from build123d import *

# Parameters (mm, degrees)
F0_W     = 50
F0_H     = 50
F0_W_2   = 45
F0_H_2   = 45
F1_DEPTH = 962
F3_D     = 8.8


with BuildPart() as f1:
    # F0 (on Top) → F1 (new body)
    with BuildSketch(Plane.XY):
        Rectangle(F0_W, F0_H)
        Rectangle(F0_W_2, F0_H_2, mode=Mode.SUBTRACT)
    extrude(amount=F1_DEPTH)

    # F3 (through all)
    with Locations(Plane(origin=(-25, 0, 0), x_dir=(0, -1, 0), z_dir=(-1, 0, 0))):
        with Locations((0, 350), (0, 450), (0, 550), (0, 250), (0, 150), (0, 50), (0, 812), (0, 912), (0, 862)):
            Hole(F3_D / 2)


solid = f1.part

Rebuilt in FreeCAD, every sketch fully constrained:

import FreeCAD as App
import Part
import Sketcher
from FreeCAD import Vector


def add_polygon(sketch, points):
    """Adds a closed chain of lines whose ends are joined by coincident constraints."""
    first, n = sketch.GeometryCount, len(points)
    for a, b in zip(points, points[1:] + points[:1]):
        sketch.addGeometry(Part.LineSegment(App.Vector(*a, 0), App.Vector(*b, 0)), False)
    for i in range(n):
        sketch.addConstraint(Sketcher.Constraint("Coincident", first + i, 2, first + (i + 1) % n, 1))

doc = App.newDocument("Part")
body = doc.addObject("PartDesign::Body", "Body")

sketch1 = body.newObject("Sketcher::SketchObject", "Sketch")
sketch1.AttachmentSupport = (doc.getObject("XY_Plane"), [""])
sketch1.MapMode = "FlatFace"
add_polygon(sketch1, [(-25, 25), (-25, -25), (25, -25), (25, 25)])
add_polygon(sketch1, [(22, -22), (-22, -22), (-22, 22), (22, 22)])
sketch1.addConstraint([
    Sketcher.Constraint("Vertical", 0),
    Sketcher.Constraint("Horizontal", 1),
    Sketcher.Constraint("Vertical", 2),
    Sketcher.Constraint("Horizontal", 3),
    Sketcher.Constraint("Horizontal", 4),
    Sketcher.Constraint("Vertical", 5),
    Sketcher.Constraint("Horizontal", 6),
    Sketcher.Constraint("Vertical", 7),
    Sketcher.Constraint("Symmetric", 0, 2, 2, 2, -1, 1),
    Sketcher.Constraint("Symmetric", 4, 2, 6, 2, -1, 1),
    Sketcher.Constraint("Equal", 3, 0),
    Sketcher.Constraint("Equal", 6, 5),
    Sketcher.Constraint("DistanceX", 1, 1, 1, 2, 50.0),
    Sketcher.Constraint("DistanceX", 4, 2, 4, 1, 45.0),
])
pad1 = body.newObject("PartDesign::Pad", "Pad")
pad1.Profile = sketch1
pad1.Length = 962

sketch2 = body.newObject("Sketcher::SketchObject", "Sketch001")
sketch2.AttachmentSupport = (doc.getObject("YZ_Plane"), [""])
sketch2.MapMode = "FlatFace"
sketch2.AttachmentOffset = App.Placement(Vector(0, 0, -25), App.Rotation())
sketch2.addGeometry([
    Part.Circle(Vector(0, 350, 0), Vector(0, 0, 1), 4.4),
    Part.Circle(Vector(0, 450, 0), Vector(0, 0, 1), 4.4),
    Part.Circle(Vector(0, 550, 0), Vector(0, 0, 1), 4.4),
    Part.Circle(Vector(0, 250, 0), Vector(0, 0, 1), 4.4),
    Part.Circle(Vector(0, 150, 0), Vector(0, 0, 1), 4.4),
    Part.Circle(Vector(0, 50, 0), Vector(0, 0, 1), 4.4),
    Part.Circle(Vector(0, 812, 0), Vector(0, 0, 1), 4.4),
    Part.Circle(Vector(0, 912, 0), Vector(0, 0, 1), 4.4),
    Part.Circle(Vector(0, 862, 0), Vector(0, 0, 1), 4.4),
], False)
sketch2.addConstraint([
    Sketcher.Constraint("Equal", 0, 1),
    Sketcher.Constraint("Equal", 1, 2),
    Sketcher.Constraint("Equal", 2, 3),
    Sketcher.Constraint("Equal", 3, 4),
    Sketcher.Constraint("Equal", 4, 5),
    Sketcher.Constraint("Equal", 5, 6),
    Sketcher.Constraint("Equal", 6, 7),
    Sketcher.Constraint("Equal", 7, 8),
    Sketcher.Constraint("PointOnObject", 0, 3, -2),
    Sketcher.Constraint("PointOnObject", 1, 3, -2),
    Sketcher.Constraint("PointOnObject", 2, 3, -2),
    Sketcher.Constraint("PointOnObject", 3, 3, -2),
    Sketcher.Constraint("PointOnObject", 4, 3, -2),
    Sketcher.Constraint("PointOnObject", 5, 3, -2),
    Sketcher.Constraint("PointOnObject", 6, 3, -2),
    Sketcher.Constraint("PointOnObject", 7, 3, -2),
    Sketcher.Constraint("PointOnObject", 8, 3, -2),
    Sketcher.Constraint("Diameter", 0, 8.8),
    Sketcher.Constraint("DistanceY", -1, 1, 0, 3, 350.0),
    Sketcher.Constraint("DistanceY", -1, 1, 1, 3, 450.0),
    Sketcher.Constraint("DistanceY", -1, 1, 2, 3, 550.0),
    Sketcher.Constraint("DistanceY", -1, 1, 3, 3, 250.0),
    Sketcher.Constraint("DistanceY", -1, 1, 4, 3, 150.0),
    Sketcher.Constraint("DistanceY", -1, 1, 5, 3, 50.0),
    Sketcher.Constraint("DistanceY", -1, 1, 6, 3, 812.0),
    Sketcher.Constraint("DistanceY", -1, 1, 7, 3, 912.0),
    Sketcher.Constraint("DistanceY", -1, 1, 8, 3, 862.0),
])
doc.recompute()
hole = body.newObject("PartDesign::Hole", "Hole")
hole.Profile = sketch2
hole.ThreadType = "None"
hole.Diameter = 8.8
hole.DepthType = "ThroughAll"
hole.Reversed = True

doc.recompute()
